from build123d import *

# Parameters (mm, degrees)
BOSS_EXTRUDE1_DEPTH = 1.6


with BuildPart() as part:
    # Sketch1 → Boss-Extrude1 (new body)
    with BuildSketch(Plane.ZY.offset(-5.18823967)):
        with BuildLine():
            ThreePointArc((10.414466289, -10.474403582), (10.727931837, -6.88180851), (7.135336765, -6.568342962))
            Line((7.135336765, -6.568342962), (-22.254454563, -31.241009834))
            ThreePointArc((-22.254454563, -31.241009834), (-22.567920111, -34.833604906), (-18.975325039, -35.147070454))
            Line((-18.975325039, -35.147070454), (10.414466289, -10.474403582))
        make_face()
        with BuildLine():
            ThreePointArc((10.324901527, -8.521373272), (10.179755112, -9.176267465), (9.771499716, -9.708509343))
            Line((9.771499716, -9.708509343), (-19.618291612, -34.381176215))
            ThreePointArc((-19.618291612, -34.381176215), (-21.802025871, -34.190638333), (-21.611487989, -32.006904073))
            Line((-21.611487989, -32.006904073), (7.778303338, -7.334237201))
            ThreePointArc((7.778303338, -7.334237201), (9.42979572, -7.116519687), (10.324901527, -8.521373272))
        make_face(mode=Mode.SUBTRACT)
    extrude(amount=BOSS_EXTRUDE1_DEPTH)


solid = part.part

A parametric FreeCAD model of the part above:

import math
import FreeCAD as App
import Part
import Sketcher

V = App.Vector
Q = App.Units.Quantity

doc = App.newDocument("Part")
body = doc.addObject("PartDesign::Body", "Body")

sketch1 = body.newObject("Sketcher::SketchObject", "Sketch")
sketch1.AttachmentSupport = (doc.getObject("YZ_Plane"), [""])
sketch1.MapMode = "FlatFace"
sketch1.AttachmentOffset = App.Placement(V(0, 0, 5.18824), App.Rotation())
sketch1.addGeometry(Part.ArcOfCircle(Part.Circle(V(-8.5, 8.8, 0), V(0, 0, 1), 2.5), math.radians(-40), math.radians(140)), False)
sketch1.addGeometry(Part.LineSegment(V(-6.6, 7.1, 0), V(-31.2, -22.3, 0)), False)
sketch1.addGeometry(Part.ArcOfCircle(Part.Circle(V(-33.2, -20.6, 0), V(0, 0, 1), 2.5), math.radians(140), math.radians(320)), False)
sketch1.addGeometry(Part.LineSegment(V(-35.1, -19, 0), V(-10.5, 10.4, 0)), False)
sketch1.addGeometry(Part.ArcOfCircle(Part.Circle(V(-8.5, 8.8, 0), V(0, 0, 1), 1.6), math.radians(-40), math.radians(90)), False)
sketch1.addGeometry(Part.ArcOfCircle(Part.Circle(V(-8.5, 8.8, 0), V(0, 0, 1), 1.6), math.radians(90), math.radians(140)), False)
sketch1.addGeometry(Part.LineSegment(V(-9.7, 9.8, 0), V(-34.4, -19.6, 0)), False)
sketch1.addGeometry(Part.ArcOfCircle(Part.Circle(V(-33.2, -20.6, 0), V(0, 0, 1), 1.6), math.radians(140), math.radians(320)), False)
sketch1.addGeometry(Part.LineSegment(V(-32, -21.6, 0), V(-7.3, 7.8, 0)), False)
sketch1.addConstraint(Sketcher.Constraint("Tangent", 0, 1, 1, 1))
sketch1.addConstraint(Sketcher.Constraint("Tangent", 1, 2, 2, 2))
sketch1.addConstraint(Sketcher.Constraint("Tangent", 2, 1, 3, 1))
sketch1.addConstraint(Sketcher.Constraint("Tangent", 3, 2, 0, 2))
sketch1.addConstraint(Sketcher.Constraint("Tangent", 4, 2, 5, 1))
sketch1.addConstraint(Sketcher.Constraint("Tangent", 5, 2, 6, 1))
sketch1.addConstraint(Sketcher.Constraint("Tangent", 6, 2, 7, 1))
sketch1.addConstraint(Sketcher.Constraint("Tangent", 7, 2, 8, 1))
sketch1.addConstraint(Sketcher.Constraint("Tangent", 8, 2, 4, 1))
sketch1.addConstraint(Sketcher.Constraint("Coincident", 4, 3, 0, 3))
sketch1.addConstraint(Sketcher.Constraint("Coincident", 7, 3, 2, 3))
sketch1.addConstraint(Sketcher.Constraint("Equal", 0, 2))
sketch1.addConstraint(Sketcher.Constraint("Equal", 4, 5))
sketch1.addConstraint(Sketcher.Constraint("Equal", 5, 7))
sketch1.addConstraint(Sketcher.Constraint("Vertical", 5, 3, 4, 2))
sketch1.addConstraint(Sketcher.Constraint("Radius", 0, Q("2.55 mm")))
sketch1.addConstraint(Sketcher.Constraint("Radius", 4, Q("1.55 mm")))
sketch1.addConstraint(Sketcher.Constraint("DistanceY", -1, 1, 0, 3, Q("8.774902 mm")))
sketch1.addConstraint(Sketcher.Constraint("DistanceY", -1, 1, 5, 2, Q("9.7715 mm")))
sketch1.addConstraint(Sketcher.Constraint("Distance", 1, Q("38.373172 mm")))
sketch1.addConstraint(Sketcher.Constraint("DistanceX", 2, 3, -1, 1, Q("33.19404 mm")))
pad1 = body.newObject("PartDesign::Pad", "Pad")
pad1.Profile = sketch1
pad1.Length = 1.6
pad1.Reversed = True

doc.recompute()
